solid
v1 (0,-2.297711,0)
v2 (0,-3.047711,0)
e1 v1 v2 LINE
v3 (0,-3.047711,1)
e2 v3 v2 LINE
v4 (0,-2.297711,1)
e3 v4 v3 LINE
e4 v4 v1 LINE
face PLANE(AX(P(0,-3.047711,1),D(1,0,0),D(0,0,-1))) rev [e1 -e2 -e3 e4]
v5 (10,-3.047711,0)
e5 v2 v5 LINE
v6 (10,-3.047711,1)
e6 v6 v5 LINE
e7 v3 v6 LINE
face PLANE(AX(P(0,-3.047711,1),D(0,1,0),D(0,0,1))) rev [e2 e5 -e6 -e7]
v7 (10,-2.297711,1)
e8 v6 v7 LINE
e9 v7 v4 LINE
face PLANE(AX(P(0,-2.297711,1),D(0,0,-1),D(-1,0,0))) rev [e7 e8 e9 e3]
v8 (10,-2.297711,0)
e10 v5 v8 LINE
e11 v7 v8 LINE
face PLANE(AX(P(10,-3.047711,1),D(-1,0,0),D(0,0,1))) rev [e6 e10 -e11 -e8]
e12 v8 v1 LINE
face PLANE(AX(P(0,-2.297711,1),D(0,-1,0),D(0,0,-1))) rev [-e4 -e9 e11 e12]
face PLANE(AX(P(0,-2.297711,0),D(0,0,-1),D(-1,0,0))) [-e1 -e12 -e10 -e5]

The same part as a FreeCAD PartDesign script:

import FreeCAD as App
import Part
import Sketcher
from FreeCAD import Vector
Q = App.Units.Quantity


def add_polygon(sketch, points):
    """Adds a closed chain of lines whose ends are joined by coincident constraints."""
    first, n = sketch.GeometryCount, len(points)
    for a, b in zip(points, points[1:] + points[:1]):
        sketch.addGeometry(Part.LineSegment(App.Vector(*a, 0), App.Vector(*b, 0)), False)
    for i in range(n):
        sketch.addConstraint(Sketcher.Constraint("Coincident", first + i, 2, first + (i + 1) % n, 1))

doc = App.newDocument("Part")
body = doc.addObject("PartDesign::Body", "Body")

# Sketch on XY plane
sketch1 = body.newObject("Sketcher::SketchObject", "Sketch")
sketch1.AttachmentSupport = (doc.getObject("XY_Plane"), [""])
sketch1.MapMode = "FlatFace"
add_polygon(sketch1, [(0, -2.3), (0, -3), (10, -3), (10, -2.3)])  # lines 0-3
sketch1.addConstraint([
    Sketcher.Constraint("Vertical", 0),
    Sketcher.Constraint("Horizontal", 1),
    Sketcher.Constraint("Vertical", 2),
    Sketcher.Constraint("Horizontal", 3),
    Sketcher.Constraint("PointOnObject", 0, 2, -2),
    Sketcher.Constraint("DistanceX", 1, 1, 1, 2, Q("10 mm")),
    Sketcher.Constraint("DistanceY", 0, 2, 0, 1, Q("0.75 mm")),
    Sketcher.Constraint("DistanceY", 0, 2, -1, 1, Q("3.047711 mm")),
])
pad1 = body.newObject("PartDesign::Pad", "Pad")
pad1.Profile = sketch1
pad1.Length = 1

doc.recompute()
